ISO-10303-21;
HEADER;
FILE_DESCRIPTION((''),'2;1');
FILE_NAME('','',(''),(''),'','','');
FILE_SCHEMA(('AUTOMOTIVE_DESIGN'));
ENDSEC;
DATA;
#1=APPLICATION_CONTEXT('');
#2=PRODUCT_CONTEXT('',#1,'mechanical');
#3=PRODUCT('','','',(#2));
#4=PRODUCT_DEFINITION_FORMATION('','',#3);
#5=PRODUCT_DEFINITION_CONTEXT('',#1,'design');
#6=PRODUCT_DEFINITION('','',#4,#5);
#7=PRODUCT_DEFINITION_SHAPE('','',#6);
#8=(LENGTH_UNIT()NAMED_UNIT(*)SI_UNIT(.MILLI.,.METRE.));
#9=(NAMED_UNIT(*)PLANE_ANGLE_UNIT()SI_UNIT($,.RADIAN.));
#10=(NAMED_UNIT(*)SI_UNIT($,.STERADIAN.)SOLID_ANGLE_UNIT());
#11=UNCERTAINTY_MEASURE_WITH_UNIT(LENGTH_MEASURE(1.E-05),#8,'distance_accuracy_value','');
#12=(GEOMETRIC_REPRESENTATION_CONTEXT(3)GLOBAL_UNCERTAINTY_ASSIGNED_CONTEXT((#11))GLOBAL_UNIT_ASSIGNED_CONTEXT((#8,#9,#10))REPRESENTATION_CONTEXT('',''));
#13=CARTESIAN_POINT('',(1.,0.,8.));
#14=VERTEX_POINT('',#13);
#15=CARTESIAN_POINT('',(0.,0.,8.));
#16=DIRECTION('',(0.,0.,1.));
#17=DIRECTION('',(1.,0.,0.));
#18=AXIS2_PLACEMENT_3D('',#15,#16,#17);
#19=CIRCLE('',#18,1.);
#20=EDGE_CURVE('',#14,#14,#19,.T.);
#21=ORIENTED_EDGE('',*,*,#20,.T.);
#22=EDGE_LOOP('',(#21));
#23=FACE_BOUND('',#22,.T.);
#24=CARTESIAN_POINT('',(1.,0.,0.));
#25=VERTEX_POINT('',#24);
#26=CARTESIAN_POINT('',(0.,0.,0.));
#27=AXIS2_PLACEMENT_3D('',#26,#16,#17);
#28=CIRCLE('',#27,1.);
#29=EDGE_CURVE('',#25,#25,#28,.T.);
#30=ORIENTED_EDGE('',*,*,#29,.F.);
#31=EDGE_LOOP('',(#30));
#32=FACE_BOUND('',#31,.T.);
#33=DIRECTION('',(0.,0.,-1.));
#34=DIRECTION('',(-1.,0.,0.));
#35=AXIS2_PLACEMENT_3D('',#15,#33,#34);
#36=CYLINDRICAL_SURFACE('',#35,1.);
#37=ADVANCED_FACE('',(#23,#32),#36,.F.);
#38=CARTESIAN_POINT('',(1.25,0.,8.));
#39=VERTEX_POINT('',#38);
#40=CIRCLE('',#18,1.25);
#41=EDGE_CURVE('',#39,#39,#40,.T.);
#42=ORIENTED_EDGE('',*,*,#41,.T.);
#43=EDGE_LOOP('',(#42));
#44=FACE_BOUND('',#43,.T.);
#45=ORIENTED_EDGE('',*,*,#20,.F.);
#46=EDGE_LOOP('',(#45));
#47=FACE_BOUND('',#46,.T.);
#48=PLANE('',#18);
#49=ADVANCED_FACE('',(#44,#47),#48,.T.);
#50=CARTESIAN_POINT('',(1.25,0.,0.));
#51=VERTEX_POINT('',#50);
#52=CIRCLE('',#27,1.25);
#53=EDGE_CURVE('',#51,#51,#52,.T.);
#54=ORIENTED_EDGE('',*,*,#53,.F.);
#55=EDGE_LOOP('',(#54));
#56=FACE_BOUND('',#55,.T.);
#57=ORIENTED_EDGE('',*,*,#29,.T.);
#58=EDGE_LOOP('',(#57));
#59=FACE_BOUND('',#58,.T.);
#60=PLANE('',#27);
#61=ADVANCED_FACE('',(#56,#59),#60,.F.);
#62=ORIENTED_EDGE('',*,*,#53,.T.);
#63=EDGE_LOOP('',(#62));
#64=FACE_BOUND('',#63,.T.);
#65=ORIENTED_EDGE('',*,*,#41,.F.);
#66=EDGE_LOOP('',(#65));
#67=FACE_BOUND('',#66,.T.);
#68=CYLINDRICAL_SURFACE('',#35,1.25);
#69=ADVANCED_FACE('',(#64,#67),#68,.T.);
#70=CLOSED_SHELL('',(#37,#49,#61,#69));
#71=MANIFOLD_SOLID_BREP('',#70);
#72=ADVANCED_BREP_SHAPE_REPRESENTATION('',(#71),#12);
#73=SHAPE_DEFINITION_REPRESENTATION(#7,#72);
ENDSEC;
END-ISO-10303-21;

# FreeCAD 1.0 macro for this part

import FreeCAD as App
import Part
import Sketcher
from FreeCAD import Vector

doc = App.newDocument("Part")
body = doc.addObject("PartDesign::Body", "Body")

# Sketch on XY plane
sketch1 = body.newObject("Sketcher::SketchObject", "Sketch")
sketch1.AttachmentSupport = (doc.getObject("XY_Plane"), [""])
sketch1.MapMode = "FlatFace"
sketch1.addGeometry([
    Part.Circle(Vector(0, 0, 0), Vector(0, 0, 1), 1.25),
    Part.Circle(Vector(0, 0, 0), Vector(0, 0, 1), 1),
], False)
sketch1.addConstraint([
    Sketcher.Constraint("Coincident", 0, 3, -1, 1),
    Sketcher.Constraint("Coincident", 1, 3, -1, 1),
    Sketcher.Constraint("Diameter", 1, 2.0),
    Sketcher.Constraint("Diameter", 0, 2.5),
])
pad1 = body.newObject("PartDesign::Pad", "Pad")
pad1.Profile = sketch1
pad1.Length = 8

doc.recompute()
